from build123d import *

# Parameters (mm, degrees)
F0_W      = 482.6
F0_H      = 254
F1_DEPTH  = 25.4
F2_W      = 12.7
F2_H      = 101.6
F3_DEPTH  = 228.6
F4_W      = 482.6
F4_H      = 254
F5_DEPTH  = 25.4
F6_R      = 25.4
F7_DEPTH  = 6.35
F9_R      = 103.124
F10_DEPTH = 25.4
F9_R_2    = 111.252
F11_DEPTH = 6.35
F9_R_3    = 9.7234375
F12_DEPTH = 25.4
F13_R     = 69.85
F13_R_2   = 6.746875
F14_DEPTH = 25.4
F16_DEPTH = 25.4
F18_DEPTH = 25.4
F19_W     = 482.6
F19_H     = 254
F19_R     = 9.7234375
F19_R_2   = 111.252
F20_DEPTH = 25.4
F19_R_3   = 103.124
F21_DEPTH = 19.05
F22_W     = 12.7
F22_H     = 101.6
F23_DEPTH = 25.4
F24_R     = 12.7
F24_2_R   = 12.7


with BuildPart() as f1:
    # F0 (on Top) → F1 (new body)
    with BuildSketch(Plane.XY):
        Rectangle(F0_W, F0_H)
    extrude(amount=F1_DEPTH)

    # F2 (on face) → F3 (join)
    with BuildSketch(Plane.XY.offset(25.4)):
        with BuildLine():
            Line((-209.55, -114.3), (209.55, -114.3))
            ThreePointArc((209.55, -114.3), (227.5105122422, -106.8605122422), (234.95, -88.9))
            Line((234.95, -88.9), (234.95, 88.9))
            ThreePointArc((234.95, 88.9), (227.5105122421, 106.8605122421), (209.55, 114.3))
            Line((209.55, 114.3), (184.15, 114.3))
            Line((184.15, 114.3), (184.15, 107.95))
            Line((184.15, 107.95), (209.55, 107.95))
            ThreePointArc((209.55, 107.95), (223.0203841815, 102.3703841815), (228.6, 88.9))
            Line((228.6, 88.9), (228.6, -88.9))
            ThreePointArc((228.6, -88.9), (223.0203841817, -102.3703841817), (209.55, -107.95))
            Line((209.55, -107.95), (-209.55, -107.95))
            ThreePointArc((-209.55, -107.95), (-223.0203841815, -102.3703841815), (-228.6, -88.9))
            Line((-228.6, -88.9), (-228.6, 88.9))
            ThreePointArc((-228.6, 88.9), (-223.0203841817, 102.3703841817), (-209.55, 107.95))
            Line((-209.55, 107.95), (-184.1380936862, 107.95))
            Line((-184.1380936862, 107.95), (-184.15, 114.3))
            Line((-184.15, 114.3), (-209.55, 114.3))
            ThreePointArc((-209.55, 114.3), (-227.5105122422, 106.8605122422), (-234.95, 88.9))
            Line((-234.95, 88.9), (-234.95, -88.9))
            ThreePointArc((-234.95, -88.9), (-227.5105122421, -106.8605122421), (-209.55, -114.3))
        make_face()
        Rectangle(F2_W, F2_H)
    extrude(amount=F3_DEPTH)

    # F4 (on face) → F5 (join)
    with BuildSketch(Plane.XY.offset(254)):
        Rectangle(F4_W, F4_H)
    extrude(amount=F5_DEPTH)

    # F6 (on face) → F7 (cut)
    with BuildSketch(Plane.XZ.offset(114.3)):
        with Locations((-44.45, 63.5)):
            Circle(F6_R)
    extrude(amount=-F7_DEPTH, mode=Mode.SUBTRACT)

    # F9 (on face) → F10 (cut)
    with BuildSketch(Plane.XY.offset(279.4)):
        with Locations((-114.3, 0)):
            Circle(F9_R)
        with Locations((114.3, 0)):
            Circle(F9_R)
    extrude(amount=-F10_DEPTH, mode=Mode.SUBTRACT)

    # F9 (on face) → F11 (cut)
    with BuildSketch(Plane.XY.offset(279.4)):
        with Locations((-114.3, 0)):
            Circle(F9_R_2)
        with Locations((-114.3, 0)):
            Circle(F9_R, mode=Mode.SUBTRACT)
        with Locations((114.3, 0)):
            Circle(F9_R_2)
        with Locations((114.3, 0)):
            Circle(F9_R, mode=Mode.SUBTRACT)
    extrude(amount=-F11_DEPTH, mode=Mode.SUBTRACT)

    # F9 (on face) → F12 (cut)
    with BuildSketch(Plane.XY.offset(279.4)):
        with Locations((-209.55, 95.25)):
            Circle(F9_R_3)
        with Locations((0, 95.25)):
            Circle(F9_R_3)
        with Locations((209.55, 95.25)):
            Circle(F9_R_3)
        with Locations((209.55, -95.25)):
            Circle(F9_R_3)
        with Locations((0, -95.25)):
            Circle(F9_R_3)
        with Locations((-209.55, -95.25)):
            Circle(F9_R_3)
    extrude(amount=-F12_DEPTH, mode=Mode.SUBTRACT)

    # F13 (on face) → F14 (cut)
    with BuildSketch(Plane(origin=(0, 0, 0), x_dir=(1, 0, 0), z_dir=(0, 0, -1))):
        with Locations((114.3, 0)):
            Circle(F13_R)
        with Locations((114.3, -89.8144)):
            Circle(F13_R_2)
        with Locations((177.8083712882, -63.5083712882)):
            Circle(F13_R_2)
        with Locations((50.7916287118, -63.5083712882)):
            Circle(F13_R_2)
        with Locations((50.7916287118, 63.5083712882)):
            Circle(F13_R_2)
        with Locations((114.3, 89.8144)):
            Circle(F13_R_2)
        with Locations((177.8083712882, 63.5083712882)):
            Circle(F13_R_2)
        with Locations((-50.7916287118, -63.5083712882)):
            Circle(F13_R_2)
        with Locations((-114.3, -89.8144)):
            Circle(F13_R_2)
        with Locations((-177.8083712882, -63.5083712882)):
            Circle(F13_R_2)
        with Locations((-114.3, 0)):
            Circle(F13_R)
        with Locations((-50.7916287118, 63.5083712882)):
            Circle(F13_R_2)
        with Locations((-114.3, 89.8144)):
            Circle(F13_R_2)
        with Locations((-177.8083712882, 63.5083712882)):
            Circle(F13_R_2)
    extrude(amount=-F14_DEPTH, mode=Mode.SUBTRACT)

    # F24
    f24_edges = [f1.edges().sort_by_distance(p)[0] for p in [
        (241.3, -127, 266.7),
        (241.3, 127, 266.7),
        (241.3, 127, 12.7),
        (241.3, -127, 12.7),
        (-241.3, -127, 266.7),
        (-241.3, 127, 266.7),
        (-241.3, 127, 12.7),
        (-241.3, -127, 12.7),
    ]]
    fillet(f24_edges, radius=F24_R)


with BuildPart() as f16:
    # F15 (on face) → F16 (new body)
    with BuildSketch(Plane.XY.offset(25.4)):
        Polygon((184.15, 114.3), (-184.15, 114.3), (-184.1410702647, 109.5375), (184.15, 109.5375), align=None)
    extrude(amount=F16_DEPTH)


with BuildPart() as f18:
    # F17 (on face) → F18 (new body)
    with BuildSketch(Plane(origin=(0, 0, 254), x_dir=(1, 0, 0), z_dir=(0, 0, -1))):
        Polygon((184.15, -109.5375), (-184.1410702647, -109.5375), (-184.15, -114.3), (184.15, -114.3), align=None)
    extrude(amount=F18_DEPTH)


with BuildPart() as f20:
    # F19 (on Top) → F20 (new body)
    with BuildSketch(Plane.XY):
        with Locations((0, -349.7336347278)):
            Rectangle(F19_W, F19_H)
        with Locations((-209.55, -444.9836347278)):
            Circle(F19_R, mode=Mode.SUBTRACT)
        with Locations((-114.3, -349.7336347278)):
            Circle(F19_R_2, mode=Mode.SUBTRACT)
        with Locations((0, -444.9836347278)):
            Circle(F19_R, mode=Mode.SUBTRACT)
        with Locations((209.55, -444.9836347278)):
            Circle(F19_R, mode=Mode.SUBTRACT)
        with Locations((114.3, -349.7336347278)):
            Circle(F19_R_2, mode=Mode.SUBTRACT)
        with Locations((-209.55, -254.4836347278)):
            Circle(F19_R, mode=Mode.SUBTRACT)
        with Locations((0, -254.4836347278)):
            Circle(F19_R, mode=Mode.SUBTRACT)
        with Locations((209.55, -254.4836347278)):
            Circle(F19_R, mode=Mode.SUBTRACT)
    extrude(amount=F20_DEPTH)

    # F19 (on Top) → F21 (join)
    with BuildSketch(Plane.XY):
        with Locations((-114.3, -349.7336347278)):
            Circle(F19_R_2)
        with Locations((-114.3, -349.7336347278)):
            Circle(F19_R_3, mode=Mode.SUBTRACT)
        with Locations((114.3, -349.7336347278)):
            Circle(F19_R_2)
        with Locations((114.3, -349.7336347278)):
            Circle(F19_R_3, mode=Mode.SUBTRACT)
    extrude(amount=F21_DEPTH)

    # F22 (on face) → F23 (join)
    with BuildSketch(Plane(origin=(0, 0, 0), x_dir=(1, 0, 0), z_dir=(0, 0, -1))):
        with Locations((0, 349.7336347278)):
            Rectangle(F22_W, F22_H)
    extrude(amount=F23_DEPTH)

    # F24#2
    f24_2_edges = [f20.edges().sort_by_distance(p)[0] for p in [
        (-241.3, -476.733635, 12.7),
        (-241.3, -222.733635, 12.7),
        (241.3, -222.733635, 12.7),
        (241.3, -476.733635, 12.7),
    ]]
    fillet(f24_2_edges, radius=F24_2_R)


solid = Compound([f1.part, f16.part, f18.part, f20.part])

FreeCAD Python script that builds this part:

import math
import FreeCAD as App
import Part
import Sketcher
from FreeCAD import Vector
Q = App.Units.Quantity


def edges_at(feature, points):
    """Names of the edges that pass closest to the given points."""
    edges = feature.Shape.Edges
    near = lambda p: min(range(len(edges)), key=lambda i: edges[i].distToShape(Part.Vertex(*p))[0])
    return sorted({f"Edge{near(p) + 1}" for p in points})

doc = App.newDocument("Part")
body = doc.addObject("PartDesign::Body", "Body")

sketch1 = body.newObject("Sketcher::SketchObject", "Sketch")
sketch1.AttachmentSupport = (doc.getObject("XY_Plane"), [""])
sketch1.MapMode = "FlatFace"
sketch1.addGeometry([
    Part.LineSegment(Vector(-241, 127, 0), Vector(-241, -127, 0)),
    Part.LineSegment(Vector(-241, -127, 0), Vector(241, -127, 0)),
    Part.LineSegment(Vector(241, -127, 0), Vector(241, 127, 0)),
    Part.LineSegment(Vector(241, 127, 0), Vector(-241, 127, 0)),
], False)
sketch1.addConstraint([
    Sketcher.Constraint("Coincident", 0, 2, 1, 1),
    Sketcher.Constraint("Coincident", 1, 2, 2, 1),
    Sketcher.Constraint("Coincident", 2, 2, 3, 1),
    Sketcher.Constraint("Coincident", 3, 2, 0, 1),
    Sketcher.Constraint("Vertical", 0),
    Sketcher.Constraint("Horizontal", 1),
    Sketcher.Constraint("Vertical", 2),
    Sketcher.Constraint("Horizontal", 3),
    Sketcher.Constraint("Symmetric", 0, 2, 2, 2, -1, 1),
    Sketcher.Constraint("DistanceX", 1, 1, 1, 2, Q("19 in")),
    Sketcher.Constraint("DistanceY", 0, 2, 0, 1, Q("10 in")),
])
pad1 = body.newObject("PartDesign::Pad", "Pad")
pad1.Profile = sketch1
pad1.Length = Q("1 in")

sketch2 = body.newObject("Sketcher::SketchObject", "Sketch001")
sketch2.AttachmentSupport = (doc.getObject("XY_Plane"), [""])
sketch2.MapMode = "FlatFace"
sketch2.AttachmentOffset = App.Placement(Vector(0, 0, 1 * 25.4), App.Rotation())
sketch2.addGeometry([
    Part.LineSegment(Vector(-210, -114, 0), Vector(210, -114, 0)),
    Part.ArcOfCircle(Part.Circle(Vector(210, -89, 0), Vector(0, 0, 1), 25), math.radians(-90), math.radians(0)),
    Part.LineSegment(Vector(235, -89, 0), Vector(235, 89, 0)),
    Part.ArcOfCircle(Part.Circle(Vector(210, 89, 0), Vector(0, 0, 1), 25), math.radians(0), math.radians(90)),
    Part.LineSegment(Vector(210, 114, 0), Vector(184, 114, 0)),
    Part.LineSegment(Vector(184, 114, 0), Vector(184, 108, 0)),
    Part.LineSegment(Vector(184, 108, 0), Vector(210, 108, 0)),
    Part.ArcOfCircle(Part.Circle(Vector(210, 89, 0), Vector(0, 0, 1), 19), math.radians(0), math.radians(90)),
    Part.LineSegment(Vector(229, 89, 0), Vector(229, -89, 0)),
    Part.ArcOfCircle(Part.Circle(Vector(210, -89, 0), Vector(0, 0, 1), 19), math.radians(-90), math.radians(0)),
    Part.LineSegment(Vector(210, -108, 0), Vector(-210, -108, 0)),
    Part.ArcOfCircle(Part.Circle(Vector(-210, -89, 0), Vector(0, 0, 1), 19), math.radians(180), math.radians(270)),
    Part.LineSegment(Vector(-229, -89, 0), Vector(-229, 89, 0)),
    Part.ArcOfCircle(Part.Circle(Vector(-210, 89, 0), Vector(0, 0, 1), 19), math.radians(90), math.radians(180)),
    Part.LineSegment(Vector(-210, 108, 0), Vector(-184, 108, 0)),
    Part.LineSegment(Vector(-184, 108, 0), Vector(-184, 114, 0)),
    Part.LineSegment(Vector(-184, 114, 0), Vector(-210, 114, 0)),
    Part.ArcOfCircle(Part.Circle(Vector(-210, 89, 0), Vector(0, 0, 1), 25), math.radians(90), math.radians(180)),
    Part.LineSegment(Vector(-235, 89, 0), Vector(-235, -89, 0)),
    Part.ArcOfCircle(Part.Circle(Vector(-210, -89, 0), Vector(0, 0, 1), 25), math.radians(180), math.radians(270)),
    Part.LineSegment(Vector(-6, 51, 0), Vector(-6, -51, 0)),
    Part.LineSegment(Vector(-6, -51, 0), Vector(6, -51, 0)),
    Part.LineSegment(Vector(6, -51, 0), Vector(6, 51, 0)),
    Part.LineSegment(Vector(6, 51, 0), Vector(-6, 51, 0)),
], False)
sketch2.addConstraint([
    Sketcher.Constraint("Tangent", 0, 2, 1, 1),
    Sketcher.Constraint("Tangent", 1, 2, 2, 1),
    Sketcher.Constraint("Tangent", 2, 2, 3, 1),
    Sketcher.Constraint("Tangent", 3, 2, 4, 1),
    Sketcher.Constraint("Coincident", 4, 2, 5, 1),
    Sketcher.Constraint("Coincident", 5, 2, 6, 1),
    Sketcher.Constraint("Tangent", 6, 2, 7, 2),
    Sketcher.Constraint("Tangent", 7, 1, 8, 1),
    Sketcher.Constraint("Tangent", 8, 2, 9, 2),
    Sketcher.Constraint("Tangent", 9, 1, 10, 1),
    Sketcher.Constraint("Tangent", 10, 2, 11, 2),
    Sketcher.Constraint("Tangent", 11, 1, 12, 1),
    Sketcher.Constraint("Tangent", 12, 2, 13, 2),
    Sketcher.Constraint("Tangent", 13, 1, 14, 1),
    Sketcher.Constraint("Coincident", 14, 2, 15, 1),
    Sketcher.Constraint("Coincident", 15, 2, 16, 1),
    Sketcher.Constraint("Tangent", 16, 2, 17, 1),
    Sketcher.Constraint("Tangent", 17, 2, 18, 1),
    Sketcher.Constraint("Tangent", 18, 2, 19, 1),
    Sketcher.Constraint("Tangent", 19, 2, 0, 1),
    Sketcher.Constraint("Coincident", 20, 2, 21, 1),
    Sketcher.Constraint("Coincident", 21, 2, 22, 1),
    Sketcher.Constraint("Coincident", 22, 2, 23, 1),
    Sketcher.Constraint("Coincident", 23, 2, 20, 1),
    Sketcher.Constraint("Horizontal", 0),
    Sketcher.Constraint("Vertical", 2),
    Sketcher.Constraint("Horizontal", 4),
    Sketcher.Constraint("Vertical", 5),
    Sketcher.Constraint("Horizontal", 6),
    Sketcher.Constraint("Vertical", 8),
    Sketcher.Constraint("Horizontal", 10),
    Sketcher.Constraint("Vertical", 12),
    Sketcher.Constraint("Horizontal", 14),
    Sketcher.Constraint("Horizontal", 16),
    Sketcher.Constraint("Vertical", 18),
    Sketcher.Constraint("Vertical", 20),
    Sketcher.Constraint("Horizontal", 21),
    Sketcher.Constraint("Vertical", 22),
    Sketcher.Constraint("Horizontal", 23),
    Sketcher.Constraint("Coincident", 7, 3, 3, 3),
    Sketcher.Constraint("Coincident", 9, 3, 1, 3),
    Sketcher.Constraint("Coincident", 17, 3, 13, 3),
    Sketcher.Constraint("Coincident", 19, 3, 11, 3),
    Sketcher.Constraint("Equal", 1, 3),
    Sketcher.Constraint("Equal", 9, 11),
    Sketcher.Constraint("Equal", 11, 13),
    Sketcher.Constraint("Symmetric", 3, 3, 11, 3, -1, 1),
    Sketcher.Constraint("Symmetric", 20, 2, 22, 2, -1, 1),
    Sketcher.Constraint("Symmetric", 4, 2, 15, 2, -2),
    Sketcher.Constraint("Radius", 1, Q("1 in")),
    Sketcher.Constraint("DistanceX", 4, 2, 4, 1, Q("1 in")),
    Sketcher.Constraint("DistanceY", 2, 1, 2, 2, Q("7 in")),
    Sketcher.Constraint("DistanceY", 20, 2, 20, 1, Q("4 in")),
    Sketcher.Constraint("Radius", 7, Q("0.75 in")),
    Sketcher.Constraint("DistanceX", 0, 1, 0, 2, Q("16.5 in")),
    Sketcher.Constraint("DistanceX", 21, 1, 21, 2, Q("0.5 in")),
    Sketcher.Constraint("DistanceX", 14, 1, 14, 2, 25.411906),
])
pad2 = body.newObject("PartDesign::Pad", "Pad001")
pad2.Profile = sketch2
pad2.Length = Q("9 in")

sketch3 = body.newObject("Sketcher::SketchObject", "Sketch002")
sketch3.AttachmentSupport = (doc.getObject("XY_Plane"), [""])
sketch3.MapMode = "FlatFace"
sketch3.AttachmentOffset = App.Placement(Vector(0, 0, 10 * 25.4), App.Rotation())
sketch3.addGeometry([
    Part.LineSegment(Vector(-241, 127, 0), Vector(-241, -127, 0)),
    Part.LineSegment(Vector(-241, -127, 0), Vector(241, -127, 0)),
    Part.LineSegment(Vector(241, -127, 0), Vector(241, 127, 0)),
    Part.LineSegment(Vector(241, 127, 0), Vector(-241, 127, 0)),
], False)
sketch3.addConstraint([
    Sketcher.Constraint("Coincident", 0, 2, 1, 1),
    Sketcher.Constraint("Coincident", 1, 2, 2, 1),
    Sketcher.Constraint("Coincident", 2, 2, 3, 1),
    Sketcher.Constraint("Coincident", 3, 2, 0, 1),
    Sketcher.Constraint("Vertical", 0),
    Sketcher.Constraint("Horizontal", 1),
    Sketcher.Constraint("Vertical", 2),
    Sketcher.Constraint("Horizontal", 3),
    Sketcher.Constraint("Symmetric", 0, 2, 2, 2, -1, 1),
    Sketcher.Constraint("DistanceX", 1, 1, 1, 2, Q("19 in")),
    Sketcher.Constraint("DistanceY", 0, 2, 0, 1, Q("10 in")),
])
pad3 = body.newObject("PartDesign::Pad", "Pad002")
pad3.Profile = sketch3
pad3.Length = Q("1 in")

sketch4 = body.newObject("Sketcher::SketchObject", "Sketch003")
sketch4.AttachmentSupport = (doc.getObject("XZ_Plane"), [""])
sketch4.MapMode = "FlatFace"
sketch4.AttachmentOffset = App.Placement(Vector(0, 0, 4.5 * 25.4), App.Rotation())
sketch4.addGeometry(Part.Circle(Vector(-44, 64, 0), Vector(0, 0, 1), 25), False)
sketch4.addConstraint([
    Sketcher.Constraint("Diameter", 0, Q("2 in")),
    Sketcher.Constraint("DistanceY", -1, 1, 0, 3, Q("2.5 in")),
    Sketcher.Constraint("DistanceX", 0, 3, -1, 1, Q("1.75 in")),
])
pocket1 = body.newObject("PartDesign::Pocket", "Pocket")
pocket1.Profile = sketch4
pocket1.Length = Q("0.25 in")

sketch5 = body.newObject("Sketcher::SketchObject", "Sketch004")
sketch5.AttachmentSupport = (doc.getObject("XY_Plane"), [""])
sketch5.MapMode = "FlatFace"
sketch5.AttachmentOffset = App.Placement(Vector(0, 0, 11 * 25.4), App.Rotation())
sketch5.addGeometry([
    Part.Circle(Vector(-114, 0, 0), Vector(0, 0, 1), 103),
    Part.Circle(Vector(114, 0, 0), Vector(0, 0, 1), 103),
], False)
sketch5.addConstraint([
    Sketcher.Constraint("Equal", 0, 1),
    Sketcher.Constraint("Symmetric", 0, 3, 1, 3, -1, 1),
    Sketcher.Constraint("PointOnObject", 0, 3, -1),
    Sketcher.Constraint("Diameter", 0, Q("8.12 in")),
    Sketcher.Constraint("DistanceX", 0, 3, 1, 3, Q("9 in")),
])
pocket2 = body.newObject("PartDesign::Pocket", "Pocket001")
pocket2.Profile = sketch5
pocket2.Length = Q("1 in")

sketch6 = body.newObject("Sketcher::SketchObject", "Sketch005")
sketch6.AttachmentSupport = (doc.getObject("XY_Plane"), [""])
sketch6.MapMode = "FlatFace"
sketch6.AttachmentOffset = App.Placement(Vector(0, 0, 11 * 25.4), App.Rotation())
sketch6.addGeometry([
    Part.Circle(Vector(-114, 0, 0), Vector(0, 0, 1), 111),
    Part.Circle(Vector(-114, 0, 0), Vector(0, 0, 1), 103),
    Part.Circle(Vector(114, 0, 0), Vector(0, 0, 1), 111),
    Part.Circle(Vector(114, 0, 0), Vector(0, 0, 1), 103),
], False)
sketch6.addConstraint([
    Sketcher.Constraint("Coincident", 1, 3, 0, 3),
    Sketcher.Constraint("Coincident", 3, 3, 2, 3),
    Sketcher.Constraint("Equal", 0, 2),
    Sketcher.Constraint("Equal", 1, 3),
    Sketcher.Constraint("Symmetric", 0, 3, 2, 3, -1, 1),
    Sketcher.Constraint("PointOnObject", 0, 3, -1),
    Sketcher.Constraint("Diameter", 0, Q("8.76 in")),
    Sketcher.Constraint("Diameter", 1, Q("8.12 in")),
    Sketcher.Constraint("DistanceX", 0, 3, 2, 3, Q("9 in")),
])
pocket3 = body.newObject("PartDesign::Pocket", "Pocket002")
pocket3.Profile = sketch6
pocket3.Length = Q("0.25 in")

sketch7 = body.newObject("Sketcher::SketchObject", "Sketch006")
sketch7.AttachmentSupport = (doc.getObject("XY_Plane"), [""])
sketch7.MapMode = "FlatFace"
sketch7.AttachmentOffset = App.Placement(Vector(0, 0, 11 * 25.4), App.Rotation())
sketch7.addGeometry([
    Part.Circle(Vector(-210, 95, 0), Vector(0, 0, 1), 10),
    Part.Circle(Vector(0, 95, 0), Vector(0, 0, 1), 10),
    Part.Circle(Vector(210, 95, 0), Vector(0, 0, 1), 10),
    Part.Circle(Vector(210, -95, 0), Vector(0, 0, 1), 10),
    Part.Circle(Vector(0, -95, 0), Vector(0, 0, 1), 10),
    Part.Circle(Vector(-210, -95, 0), Vector(0, 0, 1), 10),
], False)
sketch7.addConstraint([
    Sketcher.Constraint("Equal", 0, 1),
    Sketcher.Constraint("Equal", 1, 2),
    Sketcher.Constraint("Equal", 2, 3),
    Sketcher.Constraint("Equal", 3, 4),
    Sketcher.Constraint("Equal", 4, 5),
    Sketcher.Constraint("Symmetric", 0, 3, 3, 3, -1, 1),
    Sketcher.Constraint("Symmetric", 1, 3, 4, 3, -1, 1),
    Sketcher.Constraint("Symmetric", 2, 3, 5, 3, -1, 1),
    Sketcher.Constraint("Symmetric", 0, 3, 2, 3, -2),
    Sketcher.Constraint("PointOnObject", 1, 3, -2),
    Sketcher.Constraint("Horizontal", 0, 3, 1, 3),
    Sketcher.Constraint("Diameter", 0, Q("0.765625 in")),
    Sketcher.Constraint("DistanceX", 0, 3, 2, 3, Q("16.5 in")),
    Sketcher.Constraint("DistanceY", 3, 3, 2, 3, Q("7.5 in")),
])
pocket4 = body.newObject("PartDesign::Pocket", "Pocket003")
pocket4.Profile = sketch7
pocket4.Length = Q("1 in")

sketch8 = body.newObject("Sketcher::SketchObject", "Sketch007")
sketch8.AttachmentSupport = (doc.getObject("XY_Plane"), [""])
sketch8.MapMode = "FlatFace"
sketch8.addGeometry([
    Part.Circle(Vector(114, 0, 0), Vector(0, 0, 1), 70),
    Part.Circle(Vector(114, 90, 0), Vector(0, 0, 1), 7),
    Part.Circle(Vector(178, 64, 0), Vector(0, 0, 1), 7),
    Part.Circle(Vector(51, 64, 0), Vector(0, 0, 1), 7),
    Part.Circle(Vector(51, -64, 0), Vector(0, 0, 1), 7),
    Part.Circle(Vector(114, -90, 0), Vector(0, 0, 1), 7),
    Part.Circle(Vector(178, -64, 0), Vector(0, 0, 1), 7),
    Part.Circle(Vector(-51, 64, 0), Vector(0, 0, 1), 7),
    Part.Circle(Vector(-114, 90, 0), Vector(0, 0, 1), 7),
    Part.Circle(Vector(-178, 64, 0), Vector(0, 0, 1), 7),
    Part.Circle(Vector(-114, 0, 0), Vector(0, 0, 1), 70),
    Part.Circle(Vector(-51, -64, 0), Vector(0, 0, 1), 7),
    Part.Circle(Vector(-114, -90, 0), Vector(0, 0, 1), 7),
    Part.Circle(Vector(-178, -64, 0), Vector(0, 0, 1), 7),
], False)
sketch8.addConstraint([
    Sketcher.Constraint("Equal", 1, 2),
    Sketcher.Constraint("Equal", 2, 3),
    Sketcher.Constraint("Equal", 3, 4),
    Sketcher.Constraint("Equal", 4, 5),
    Sketcher.Constraint("Equal", 5, 6),
    Sketcher.Constraint("Equal", 6, 7),
    Sketcher.Constraint("Equal", 7, 8),
    Sketcher.Constraint("Equal", 8, 9),
    Sketcher.Constraint("Equal", 0, 10),
    Sketcher.Constraint("Equal", 9, 11),
    Sketcher.Constraint("Equal", 11, 12),
    Sketcher.Constraint("Equal", 12, 13),
    Sketcher.Constraint("Symmetric", 4, 3, 7, 3, -1, 1),
    Sketcher.Constraint("Symmetric", 5, 3, 8, 3, -1, 1),
    Sketcher.Constraint("Symmetric", 6, 3, 9, 3, -1, 1),
    Sketcher.Constraint("Symmetric", 0, 3, 10, 3, -1, 1),
    Sketcher.Constraint("Symmetric", 3, 3, 11, 3, -1, 1),
    Sketcher.Constraint("Symmetric", 1, 3, 12, 3, -1, 1),
    Sketcher.Constraint("Symmetric", 2, 3, 13, 3, -1, 1),
    Sketcher.Constraint("Symmetric", 3, 3, 7, 3, -2),
    Sketcher.Constraint("Symmetric", 1, 3, 8, 3, -2),
    Sketcher.Constraint("Symmetric", 2, 3, 9, 3, -2),
    Sketcher.Constraint("PointOnObject", 0, 3, -1),
    Sketcher.Constraint("Horizontal", 2, 3, 3, 3),
    Sketcher.Constraint("Vertical", 0, 3, 1, 3),
    Sketcher.Constraint("Diameter", 0, Q("5.5 in")),
    Sketcher.Constraint("Diameter", 1, Q("0.53125 in")),
    Sketcher.Constraint("DistanceX", 8, 3, 1, 3, Q("9 in")),
    Sketcher.Constraint("DistanceX", 9, 3, 3, 3, Q("9 in")),
    Sketcher.Constraint("DistanceY", -1, 1, 1, 3, Q("3.536 in")),
    Sketcher.Constraint("DistanceX", -1, 1, 2, 3, 177.808371),
    Sketcher.Constraint("DistanceY", -1, 1, 2, 3, 63.508371),
])
pocket5 = body.newObject("PartDesign::Pocket", "Pocket004")
pocket5.Profile = sketch8
pocket5.Length = Q("1 in")
pocket5.Reversed = True
doc.recompute()

fillet = body.newObject("PartDesign::Fillet", "Fillet")
fillet.Base = (pocket5, edges_at(pocket5, [
    (241.3, -127, 266.7),
    (241.3, 127, 266.7),
    (241.3, 127, 12.7),
    (241.3, -127, 12.7),
    (-241.3, -127, 266.7),
    (-241.3, 127, 266.7),
    (-241.3, 127, 12.7),
    (-241.3, -127, 12.7),
]))
fillet.Radius = Q("0.5 in")
body2 = doc.addObject("PartDesign::Body", "Body001")

sketch9 = body2.newObject("Sketcher::SketchObject", "Sketch008")
sketch9.AttachmentSupport = (doc.getObject("XY_Plane001"), [""])
sketch9.MapMode = "FlatFace"
sketch9.AttachmentOffset = App.Placement(Vector(0, 0, 1 * 25.4), App.Rotation())
sketch9.addGeometry([
    Part.LineSegment(Vector(184.2, 114.3, 0), Vector(-184.2, 114.3, 0)),
    Part.LineSegment(Vector(-184.2, 114.3, 0), Vector(-184.1, 109.5, 0)),
    Part.LineSegment(Vector(-184.1, 109.5, 0), Vector(184.2, 109.5, 0)),
    Part.LineSegment(Vector(184.2, 109.5, 0), Vector(184.2, 114.3, 0)),
], False)
sketch9.addConstraint([
    Sketcher.Constraint("Coincident", 0, 2, 1, 1),
    Sketcher.Constraint("Coincident", 1, 2, 2, 1),
    Sketcher.Constraint("Coincident", 2, 2, 3, 1),
    Sketcher.Constraint("Coincident", 3, 2, 0, 1),
    Sketcher.Constraint("Horizontal", 0),
    Sketcher.Constraint("Horizontal", 2),
    Sketcher.Constraint("Vertical", 3),
    Sketcher.Constraint("DistanceX", 0, 2, 0, 1, Q("14.5 in")),
    Sketcher.Constraint("DistanceY", -1, 1, 0, 2, Q("4.5 in")),
    Sketcher.Constraint("DistanceY", 3, 1, 3, 2, Q("0.1875 in")),
    Sketcher.Constraint("DistanceX", 0, 2, -1, 1, Q("7.25 in")),
    Sketcher.Constraint("DistanceX", 2, 1, 2, 2, 368.29107),
])
pad4 = body2.newObject("PartDesign::Pad", "Pad003")
pad4.Profile = sketch9
pad4.Length = Q("1 in")
body3 = doc.addObject("PartDesign::Body", "Body002")

sketch10 = body3.newObject("Sketcher::SketchObject", "Sketch009")
sketch10.AttachmentSupport = (doc.getObject("XY_Plane002"), [""])
sketch10.MapMode = "FlatFace"
sketch10.AttachmentOffset = App.Placement(Vector(0, 0, 10 * 25.4), App.Rotation())
sketch10.addGeometry([
    Part.LineSegment(Vector(184.2, 109.5, 0), Vector(-184.1, 109.5, 0)),
    Part.LineSegment(Vector(-184.1, 109.5, 0), Vector(-184.2, 114.3, 0)),
    Part.LineSegment(Vector(-184.2, 114.3, 0), Vector(184.2, 114.3, 0)),
    Part.LineSegment(Vector(184.2, 114.3, 0), Vector(184.2, 109.5, 0)),
], False)
sketch10.addConstraint([
    Sketcher.Constraint("Coincident", 0, 2, 1, 1),
    Sketcher.Constraint("Coincident", 1, 2, 2, 1),
    Sketcher.Constraint("Coincident", 2, 2, 3, 1),
    Sketcher.Constraint("Coincident", 3, 2, 0, 1),
    Sketcher.Constraint("Horizontal", 0),
    Sketcher.Constraint("Horizontal", 2),
    Sketcher.Constraint("Vertical", 3),
    Sketcher.Constraint("DistanceX", 2, 1, 2, 2, Q("14.5 in")),
    Sketcher.Constraint("DistanceY", -1, 1, 1, 2, Q("4.5 in")),
    Sketcher.Constraint("DistanceY", 3, 2, 3, 1, Q("0.1875 in")),
    Sketcher.Constraint("DistanceX", 1, 2, -1, 1, Q("7.25 in")),
    Sketcher.Constraint("DistanceX", 0, 2, 0, 1, 368.29107),
])
pad5 = body3.newObject("PartDesign::Pad", "Pad004")
pad5.Profile = sketch10
pad5.Length = Q("1 in")
pad5.Reversed = True
body4 = doc.addObject("PartDesign::Body", "Body003")

sketch11 = body4.newObject("Sketcher::SketchObject", "Sketch010")
sketch11.AttachmentSupport = (doc.getObject("XY_Plane003"), [""])
sketch11.MapMode = "FlatFace"
sketch11.addGeometry([
    Part.LineSegment(Vector(-241, -223, 0), Vector(-241, -477, 0)),
    Part.LineSegment(Vector(-241, -477, 0), Vector(241, -477, 0)),
    Part.LineSegment(Vector(241, -477, 0), Vector(241, -223, 0)),
    Part.LineSegment(Vector(241, -223, 0), Vector(-241, -223, 0)),
    Part.Circle(Vector(-210, -445, 0), Vector(0, 0, 1), 10),
    Part.Circle(Vector(-114, -350, 0), Vector(0, 0, 1), 111),
    Part.Circle(Vector(0, -445, 0), Vector(0, 0, 1), 10),
    Part.Circle(Vector(210, -445, 0), Vector(0, 0, 1), 10),
    Part.Circle(Vector(114, -350, 0), Vector(0, 0, 1), 111),
    Part.Circle(Vector(-210, -254, 0), Vector(0, 0, 1), 10),
    Part.Circle(Vector(0, -254, 0), Vector(0, 0, 1), 10),
    Part.Circle(Vector(210, -254, 0), Vector(0, 0, 1), 10),
], False)
sketch11.addConstraint([
    Sketcher.Constraint("Coincident", 0, 2, 1, 1),
    Sketcher.Constraint("Coincident", 1, 2, 2, 1),
    Sketcher.Constraint("Coincident", 2, 2, 3, 1),
    Sketcher.Constraint("Coincident", 3, 2, 0, 1),
    Sketcher.Constraint("Vertical", 0),
    Sketcher.Constraint("Horizontal", 1),
    Sketcher.Constraint("Vertical", 2),
    Sketcher.Constraint("Horizontal", 3),
    Sketcher.Constraint("Equal", 4, 6),
    Sketcher.Constraint("Equal", 6, 7),
    Sketcher.Constraint("Equal", 5, 8),
    Sketcher.Constraint("Equal", 7, 9),
    Sketcher.Constraint("Equal", 9, 10),
    Sketcher.Constraint("Equal", 10, 11),
    Sketcher.Constraint("Symmetric", 4, 3, 7, 3, -2),
    Sketcher.Constraint("Symmetric", 5, 3, 8, 3, -2),
    Sketcher.Constraint("Symmetric", 9, 3, 11, 3, -2),
    Sketcher.Constraint("PointOnObject", 6, 3, -2),
    Sketcher.Constraint("PointOnObject", 10, 3, -2),
    Sketcher.Constraint("Horizontal", 4, 3, 6, 3),
    Sketcher.Constraint("Horizontal", 9, 3, 10, 3),
    Sketcher.Constraint("Vertical", 4, 3, 9, 3),
    Sketcher.Constraint("Diameter", 5, Q("8.76 in")),
    Sketcher.Constraint("DistanceX", 1, 1, 1, 2, Q("19 in")),
    Sketcher.Constraint("DistanceY", 0, 2, 0, 1, Q("10 in")),
    Sketcher.Constraint("Diameter", 4, Q("0.765625 in")),
    Sketcher.Constraint("DistanceX", 5, 3, 8, 3, Q("9 in")),
    Sketcher.Constraint("DistanceX", 0, 2, 5, 3, Q("5 in")),
    Sketcher.Constraint("DistanceY", 0, 2, 5, 3, Q("5 in")),
    Sketcher.Constraint("DistanceX", 4, 3, 7, 3, Q("16.5 in")),
    Sketcher.Constraint("DistanceY", 4, 3, 9, 3, Q("7.5 in")),
    Sketcher.Constraint("DistanceY", 4, 3, 5, 3, Q("3.75 in")),
    Sketcher.Constraint("DistanceY", 4, 3, -1, 1, 444.983635),
])
pad6 = body4.newObject("PartDesign::Pad", "Pad005")
pad6.Profile = sketch11
pad6.Length = Q("1 in")

sketch12 = body4.newObject("Sketcher::SketchObject", "Sketch011")
sketch12.AttachmentSupport = (doc.getObject("XY_Plane003"), [""])
sketch12.MapMode = "FlatFace"
sketch12.addGeometry([
    Part.Circle(Vector(-114, -350, 0), Vector(0, 0, 1), 111),
    Part.Circle(Vector(-114, -350, 0), Vector(0, 0, 1), 103),
    Part.Circle(Vector(114, -350, 0), Vector(0, 0, 1), 111),
    Part.Circle(Vector(114, -350, 0), Vector(0, 0, 1), 103),
], False)
sketch12.addConstraint([
    Sketcher.Constraint("Coincident", 1, 3, 0, 3),
    Sketcher.Constraint("Coincident", 3, 3, 2, 3),
    Sketcher.Constraint("Equal", 0, 2),
    Sketcher.Constraint("Equal", 1, 3),
    Sketcher.Constraint("Symmetric", 0, 3, 2, 3, -2),
    Sketcher.Constraint("Diameter", 0, Q("8.76 in")),
    Sketcher.Constraint("Diameter", 1, Q("8.12 in")),
    Sketcher.Constraint("DistanceX", 0, 3, 2, 3, Q("9 in")),
    Sketcher.Constraint("DistanceY", 0, 3, -1, 1, 349.733635),
])
pad7 = body4.newObject("PartDesign::Pad", "Pad006")
pad7.Profile = sketch12
pad7.Length = Q("0.75 in")

sketch13 = body4.newObject("Sketcher::SketchObject", "Sketch012")
sketch13.AttachmentSupport = (doc.getObject("XY_Plane003"), [""])
sketch13.MapMode = "FlatFace"
sketch13.addGeometry([
    Part.LineSegment(Vector(-6, -401, 0), Vector(-6, -299, 0)),
    Part.LineSegment(Vector(-6, -299, 0), Vector(6, -299, 0)),
    Part.LineSegment(Vector(6, -299, 0), Vector(6, -401, 0)),
    Part.LineSegment(Vector(6, -401, 0), Vector(-6, -401, 0)),
], False)
sketch13.addConstraint([
    Sketcher.Constraint("Coincident", 0, 2, 1, 1),
    Sketcher.Constraint("Coincident", 1, 2, 2, 1),
    Sketcher.Constraint("Coincident", 2, 2, 3, 1),
    Sketcher.Constraint("Coincident", 3, 2, 0, 1),
    Sketcher.Constraint("Vertical", 0),
    Sketcher.Constraint("Horizontal", 1),
    Sketcher.Constraint("Vertical", 2),
    Sketcher.Constraint("Horizontal", 3),
    Sketcher.Constraint("DistanceY", 0, 1, 0, 2, Q("4 in")),
    Sketcher.Constraint("DistanceX", 1, 1, 1, 2, Q("0.5 in")),
    Sketcher.Constraint("DistanceX", 0, 2, -1, 1, Q("0.25 in")),
    Sketcher.Constraint("DistanceY", 0, 2, -1, 1, 298.933635),
])
pad8 = body4.newObject("PartDesign::Pad", "Pad007")
pad8.Profile = sketch13
pad8.Length = Q("1 in")
pad8.Reversed = True
doc.recompute()

fillet2 = body4.newObject("PartDesign::Fillet", "Fillet001")
fillet2.Base = (pad8, edges_at(pad8, [
    (-241.3, -476.734, 12.7),
    (-241.3, -222.734, 12.7),
    (241.3, -222.734, 12.7),
    (241.3, -476.734, 12.7),
]))
fillet2.Radius = Q("0.5 in")

doc.recompute()
